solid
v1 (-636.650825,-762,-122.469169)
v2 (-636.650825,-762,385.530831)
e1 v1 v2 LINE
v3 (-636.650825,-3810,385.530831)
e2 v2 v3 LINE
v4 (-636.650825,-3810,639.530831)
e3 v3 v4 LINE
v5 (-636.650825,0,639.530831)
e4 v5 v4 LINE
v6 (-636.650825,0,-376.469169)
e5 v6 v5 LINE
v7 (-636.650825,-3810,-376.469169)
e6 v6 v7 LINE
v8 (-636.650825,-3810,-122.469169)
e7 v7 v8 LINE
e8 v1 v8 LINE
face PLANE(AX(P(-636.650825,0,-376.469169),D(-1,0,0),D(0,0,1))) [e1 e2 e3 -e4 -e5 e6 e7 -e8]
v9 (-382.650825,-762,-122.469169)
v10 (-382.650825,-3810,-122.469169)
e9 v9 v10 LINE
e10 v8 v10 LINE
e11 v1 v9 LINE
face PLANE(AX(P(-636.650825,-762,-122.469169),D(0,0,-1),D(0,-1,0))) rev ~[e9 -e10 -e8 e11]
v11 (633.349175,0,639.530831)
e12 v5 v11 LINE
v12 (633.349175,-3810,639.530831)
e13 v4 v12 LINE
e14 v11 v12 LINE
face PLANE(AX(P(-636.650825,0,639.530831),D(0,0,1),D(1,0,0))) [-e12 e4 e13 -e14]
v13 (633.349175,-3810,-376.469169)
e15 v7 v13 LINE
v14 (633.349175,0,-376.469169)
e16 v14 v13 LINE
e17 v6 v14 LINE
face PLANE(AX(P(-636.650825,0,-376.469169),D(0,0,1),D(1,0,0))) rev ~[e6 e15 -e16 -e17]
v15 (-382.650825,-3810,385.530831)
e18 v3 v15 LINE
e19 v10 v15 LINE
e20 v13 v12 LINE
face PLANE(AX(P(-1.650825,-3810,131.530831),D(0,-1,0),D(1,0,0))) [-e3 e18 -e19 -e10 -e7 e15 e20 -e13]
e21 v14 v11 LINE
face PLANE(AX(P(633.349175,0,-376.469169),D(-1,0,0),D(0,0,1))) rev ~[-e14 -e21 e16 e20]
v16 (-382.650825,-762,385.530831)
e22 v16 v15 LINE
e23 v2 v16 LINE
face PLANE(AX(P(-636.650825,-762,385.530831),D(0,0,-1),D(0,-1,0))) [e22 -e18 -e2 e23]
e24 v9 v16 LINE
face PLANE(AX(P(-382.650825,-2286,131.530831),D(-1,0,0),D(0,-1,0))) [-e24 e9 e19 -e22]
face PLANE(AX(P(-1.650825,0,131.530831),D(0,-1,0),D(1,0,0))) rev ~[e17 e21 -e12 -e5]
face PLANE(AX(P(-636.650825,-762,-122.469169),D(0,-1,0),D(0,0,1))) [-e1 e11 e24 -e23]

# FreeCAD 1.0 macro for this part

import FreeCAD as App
import Part
import Sketcher
from FreeCAD import Vector
Q = App.Units.Quantity

doc = App.newDocument("Part")
body = doc.addObject("PartDesign::Body", "Body")

# Sketch on XZ plane
sketch1 = body.newObject("Sketcher::SketchObject", "Sketch")
sketch1.AttachmentSupport = (doc.getObject("XZ_Plane"), [""])
sketch1.MapMode = "FlatFace"
sketch1.addGeometry([
    Part.LineSegment(Vector(-636.650825, 639.530831, 0), Vector(-636.650825, -376.469169, 0)),
    Part.LineSegment(Vector(-636.650825, -376.469169, 0), Vector(633.349175, -376.469169, 0)),
    Part.LineSegment(Vector(633.349175, -376.469169, 0), Vector(633.349175, 639.530831, 0)),
    Part.LineSegment(Vector(633.349175, 639.530831, 0), Vector(-636.650825, 639.530831, 0)),
], False)
sketch1.addConstraint([
    Sketcher.Constraint("Coincident", 0, 2, 1, 1),
    Sketcher.Constraint("Coincident", 1, 2, 2, 1),
    Sketcher.Constraint("Coincident", 2, 2, 3, 1),
    Sketcher.Constraint("Coincident", 3, 2, 0, 1),
    Sketcher.Constraint("Vertical", 0),
    Sketcher.Constraint("Horizontal", 1),
    Sketcher.Constraint("Vertical", 2),
    Sketcher.Constraint("Horizontal", 3),
    Sketcher.Constraint("DistanceX", 1, 1, 1, 2, Q("50 in")),
    Sketcher.Constraint("DistanceY", 0, 2, 0, 1, Q("40 in")),
    Sketcher.Constraint("DistanceY", 0, 2, -1, 1, Q("376.469169 mm")),
    Sketcher.Constraint("DistanceX", 0, 2, -1, 1, Q("636.650825 mm")),
])
pad1 = body.newObject("PartDesign::Pad", "Pad")
pad1.Profile = sketch1
pad1.Length = Q("150 in")
body2 = doc.addObject("PartDesign::Body", "Body001")

# Sketch on YZ plane
sketch2 = body2.newObject("Sketcher::SketchObject", "Sketch001")
sketch2.AttachmentSupport = (doc.getObject("YZ_Plane001"), [""])
sketch2.MapMode = "FlatFace"
sketch2.AttachmentOffset = App.Placement(Vector(0, 0, -636.650825), App.Rotation())
sketch2.addGeometry([
    Part.LineSegment(Vector(-762, 385.530831, 0), Vector(-762, -122.469169, 0)),
    Part.LineSegment(Vector(-762, -122.469169, 0), Vector(-3810, -122.469169, 0)),
    Part.LineSegment(Vector(-3810, -122.469169, 0), Vector(-3810, 385.530831, 0)),
    Part.LineSegment(Vector(-3810, 385.530831, 0), Vector(-762, 385.530831, 0)),
], False)
sketch2.addConstraint([
    Sketcher.Constraint("Coincident", 0, 2, 1, 1),
    Sketcher.Constraint("Coincident", 1, 2, 2, 1),
    Sketcher.Constraint("Coincident", 2, 2, 3, 1),
    Sketcher.Constraint("Coincident", 3, 2, 0, 1),
    Sketcher.Constraint("Vertical", 0),
    Sketcher.Constraint("Horizontal", 1),
    Sketcher.Constraint("Vertical", 2),
    Sketcher.Constraint("Horizontal", 3),
    Sketcher.Constraint("DistanceX", 1, 2, 1, 1, Q("120 in")),
    Sketcher.Constraint("DistanceY", 0, 2, 0, 1, Q("20 in")),
    Sketcher.Constraint("DistanceX", 0, 2, -1, 1, Q("30 in")),
    Sketcher.Constraint("DistanceY", 0, 2, -1, 1, Q("122.469169 mm")),
])
pad2 = body2.newObject("PartDesign::Pad", "Pad001")
pad2.Profile = sketch2
pad2.Length = Q("10 in")
doc.recompute()

boolean = body.newObject("PartDesign::Boolean", "Boolean")
boolean.Type = "Cut"
boolean.addObjects([body2])

doc.recompute()
